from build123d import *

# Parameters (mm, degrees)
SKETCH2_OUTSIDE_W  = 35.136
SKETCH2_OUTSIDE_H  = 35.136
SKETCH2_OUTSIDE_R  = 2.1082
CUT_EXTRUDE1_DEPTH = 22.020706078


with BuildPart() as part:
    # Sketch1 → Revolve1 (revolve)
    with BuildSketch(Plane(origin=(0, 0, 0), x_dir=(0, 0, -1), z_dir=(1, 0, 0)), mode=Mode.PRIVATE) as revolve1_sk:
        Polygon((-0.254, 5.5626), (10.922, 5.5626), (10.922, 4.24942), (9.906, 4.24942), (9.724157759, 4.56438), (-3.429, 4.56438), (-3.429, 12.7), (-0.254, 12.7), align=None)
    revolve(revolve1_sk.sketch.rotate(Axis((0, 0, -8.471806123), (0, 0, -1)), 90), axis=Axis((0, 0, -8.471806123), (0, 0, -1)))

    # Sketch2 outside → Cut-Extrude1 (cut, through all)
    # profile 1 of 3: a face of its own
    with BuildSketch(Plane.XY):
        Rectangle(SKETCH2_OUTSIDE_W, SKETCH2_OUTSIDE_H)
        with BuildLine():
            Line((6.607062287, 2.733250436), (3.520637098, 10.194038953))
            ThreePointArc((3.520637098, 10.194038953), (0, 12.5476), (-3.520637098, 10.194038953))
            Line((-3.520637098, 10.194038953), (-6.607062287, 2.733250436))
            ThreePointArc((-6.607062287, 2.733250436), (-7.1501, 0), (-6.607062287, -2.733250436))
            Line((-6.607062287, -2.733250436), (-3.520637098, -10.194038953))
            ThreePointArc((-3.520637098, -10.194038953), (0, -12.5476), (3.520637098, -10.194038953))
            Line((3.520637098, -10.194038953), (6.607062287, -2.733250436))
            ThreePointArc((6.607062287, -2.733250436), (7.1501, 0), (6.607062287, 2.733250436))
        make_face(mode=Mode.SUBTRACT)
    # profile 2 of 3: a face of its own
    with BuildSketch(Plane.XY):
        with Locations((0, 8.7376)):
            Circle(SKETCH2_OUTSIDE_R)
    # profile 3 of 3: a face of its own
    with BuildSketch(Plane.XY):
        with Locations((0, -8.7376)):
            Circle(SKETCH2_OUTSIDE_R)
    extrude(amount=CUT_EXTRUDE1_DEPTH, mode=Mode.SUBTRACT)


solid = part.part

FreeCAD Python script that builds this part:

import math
import FreeCAD as App
import Part
import Sketcher

V = App.Vector
Q = App.Units.Quantity


def add_polygon(sketch, points):
    """Adds a closed chain of lines whose ends are joined by coincident constraints."""
    first, n = sketch.GeometryCount, len(points)
    for a, b in zip(points, points[1:] + points[:1]):
        sketch.addGeometry(Part.LineSegment(App.Vector(*a, 0), App.Vector(*b, 0)), False)
    for i in range(n):
        sketch.addConstraint(Sketcher.Constraint("Coincident", first + i, 2, first + (i + 1) % n, 1))

doc = App.newDocument("Part")
body = doc.addObject("PartDesign::Body", "Body")

# Sketch on YZ plane
sketch1 = body.newObject("Sketcher::SketchObject", "Sketch")
sketch1.AttachmentSupport = (doc.getObject("YZ_Plane"), [""])
sketch1.MapMode = "FlatFace"
add_polygon(sketch1, [(5.56, -10.92), (5.56, 0.25), (12.7, 0.25), (12.7, 3.43), (4.56, 3.43), (4.56, -9.72), (4.25, -9.91), (4.25, -10.92)])  # lines 0-7
sketch1.addConstraint(Sketcher.Constraint("Vertical", 0))
sketch1.addConstraint(Sketcher.Constraint("Horizontal", 1))
sketch1.addConstraint(Sketcher.Constraint("Vertical", 2))
sketch1.addConstraint(Sketcher.Constraint("Horizontal", 3))
sketch1.addConstraint(Sketcher.Constraint("Vertical", 4))
sketch1.addConstraint(Sketcher.Constraint("Vertical", 6))
sketch1.addConstraint(Sketcher.Constraint("Horizontal", 7))
sketch1.addConstraint(Sketcher.Constraint("Angle", 5, Q("-150 deg")))
sketch1.addConstraint(Sketcher.Constraint("DistanceY", 0, 1, 0, 2, Q("0.44 in")))
sketch1.addConstraint(Sketcher.Constraint("DistanceY", 6, 2, 6, 1, Q("0.04 in")))
sketch1.addConstraint(Sketcher.Constraint("DistanceX", -1, 1, 1, 2, Q("0.5 in")))
sketch1.addConstraint(Sketcher.Constraint("DistanceX", 1, 1, 1, 2, Q("0.281 in")))
sketch1.addConstraint(Sketcher.Constraint("DistanceY", 2, 1, 2, 2, Q("0.125 in")))
sketch1.addConstraint(Sketcher.Constraint("DistanceY", -1, 1, 0, 2, Q("0.01 in")))
sketch1.addConstraint(Sketcher.Constraint("DistanceX", 3, 2, 3, 1, Q("0.3203 in")))
sketch1.addConstraint(Sketcher.Constraint("DistanceX", 7, 1, 7, 2, Q("0.0517 in")))
revolution = body.newObject("PartDesign::Revolution", "Revolution")
revolution.Profile = sketch1
revolution.ReferenceAxis = (sketch1, ["V_Axis"])
revolution.Angle = 360

# Sketch on XY plane
sketch2 = body.newObject("Sketcher::SketchObject", "Sketch001")
sketch2.AttachmentSupport = (doc.getObject("XY_Plane"), [""])
sketch2.MapMode = "FlatFace"
add_polygon(sketch2, [(-17.6, 17.6), (-17.6, -17.6), (17.6, -17.6), (17.6, 17.6)])  # lines 0-3
sketch2.addGeometry(Part.LineSegment(V(3.5, 10.2, 0), V(6.6, 2.7, 0)), False)  # 4
sketch2.addGeometry(Part.ArcOfCircle(Part.Circle(V(0, 0, 0), V(0, 0, 1), 7.2), math.radians(-22), math.radians(22)), False)  # 5
sketch2.addGeometry(Part.LineSegment(V(6.6, -2.7, 0), V(3.5, -10.2, 0)), False)  # 6
sketch2.addGeometry(Part.ArcOfCircle(Part.Circle(V(0, -8.7, 0), V(0, 0, 1), 3.8), math.radians(-158), math.radians(-22)), False)  # 7
sketch2.addGeometry(Part.LineSegment(V(-3.5, -10.2, 0), V(-6.6, -2.7, 0)), False)  # 8
sketch2.addGeometry(Part.ArcOfCircle(Part.Circle(V(0, 0, 0), V(0, 0, 1), 7.2), math.radians(158), math.radians(202)), False)  # 9
sketch2.addGeometry(Part.LineSegment(V(-6.6, 2.7, 0), V(-3.5, 10.2, 0)), False)  # 10
sketch2.addGeometry(Part.ArcOfCircle(Part.Circle(V(0, 8.7, 0), V(0, 0, 1), 3.8), math.radians(22), math.radians(158)), False)  # 11
sketch2.addGeometry(Part.Circle(V(0, 8.7, 0), V(0, 0, 1), 2.1), False)  # 12
sketch2.addGeometry(Part.Circle(V(0, -8.7, 0), V(0, 0, 1), 2.1), False)  # 13
sketch2.addConstraint(Sketcher.Constraint("Tangent", 4, 2, 5, 2))
sketch2.addConstraint(Sketcher.Constraint("Tangent", 5, 1, 6, 1))
sketch2.addConstraint(Sketcher.Constraint("Tangent", 6, 2, 7, 2))
sketch2.addConstraint(Sketcher.Constraint("Tangent", 7, 1, 8, 1))
sketch2.addConstraint(Sketcher.Constraint("Tangent", 8, 2, 9, 2))
sketch2.addConstraint(Sketcher.Constraint("Tangent", 9, 1, 10, 1))
sketch2.addConstraint(Sketcher.Constraint("Tangent", 10, 2, 11, 2))
sketch2.addConstraint(Sketcher.Constraint("Tangent", 11, 1, 4, 1))
sketch2.addConstraint(Sketcher.Constraint("Vertical", 0))
sketch2.addConstraint(Sketcher.Constraint("Horizontal", 1))
sketch2.addConstraint(Sketcher.Constraint("Vertical", 2))
sketch2.addConstraint(Sketcher.Constraint("Horizontal", 3))
sketch2.addConstraint(Sketcher.Constraint("Coincident", 5, 3, -1, 1))
sketch2.addConstraint(Sketcher.Constraint("Coincident", 9, 3, -1, 1))
sketch2.addConstraint(Sketcher.Constraint("Coincident", 12, 3, 11, 3))
sketch2.addConstraint(Sketcher.Constraint("Coincident", 13, 3, 7, 3))
sketch2.addConstraint(Sketcher.Constraint("Equal", 5, 9))
sketch2.addConstraint(Sketcher.Constraint("Equal", 7, 11))
sketch2.addConstraint(Sketcher.Constraint("Equal", 12, 13))
sketch2.addConstraint(Sketcher.Constraint("Symmetric", 7, 3, 11, 3, -1, 1))
sketch2.addConstraint(Sketcher.Constraint("Symmetric", 0, 2, 2, 2, -1, 1))
sketch2.addConstraint(Sketcher.Constraint("PointOnObject", 7, 3, -2))
sketch2.addConstraint(Sketcher.Constraint("Equal", 3, 0))
sketch2.addConstraint(Sketcher.Constraint("Radius", 7, Q("0.15 in")))
sketch2.addConstraint(Sketcher.Constraint("Diameter", 12, Q("0.166 in")))
sketch2.addConstraint(Sketcher.Constraint("Radius", 5, Q("0.2815 in")))
sketch2.addConstraint(Sketcher.Constraint("DistanceY", 7, 3, -1, 1, Q("0.344 in")))
sketch2.addConstraint(Sketcher.Constraint("DistanceX", 1, 1, 1, 2, Q("35.136 mm")))
pocket1 = body.newObject("PartDesign::Pocket", "Pocket")
pocket1.Profile = sketch2
pocket1.Length = 22.020706
pocket1.Reversed = True

doc.recompute()
